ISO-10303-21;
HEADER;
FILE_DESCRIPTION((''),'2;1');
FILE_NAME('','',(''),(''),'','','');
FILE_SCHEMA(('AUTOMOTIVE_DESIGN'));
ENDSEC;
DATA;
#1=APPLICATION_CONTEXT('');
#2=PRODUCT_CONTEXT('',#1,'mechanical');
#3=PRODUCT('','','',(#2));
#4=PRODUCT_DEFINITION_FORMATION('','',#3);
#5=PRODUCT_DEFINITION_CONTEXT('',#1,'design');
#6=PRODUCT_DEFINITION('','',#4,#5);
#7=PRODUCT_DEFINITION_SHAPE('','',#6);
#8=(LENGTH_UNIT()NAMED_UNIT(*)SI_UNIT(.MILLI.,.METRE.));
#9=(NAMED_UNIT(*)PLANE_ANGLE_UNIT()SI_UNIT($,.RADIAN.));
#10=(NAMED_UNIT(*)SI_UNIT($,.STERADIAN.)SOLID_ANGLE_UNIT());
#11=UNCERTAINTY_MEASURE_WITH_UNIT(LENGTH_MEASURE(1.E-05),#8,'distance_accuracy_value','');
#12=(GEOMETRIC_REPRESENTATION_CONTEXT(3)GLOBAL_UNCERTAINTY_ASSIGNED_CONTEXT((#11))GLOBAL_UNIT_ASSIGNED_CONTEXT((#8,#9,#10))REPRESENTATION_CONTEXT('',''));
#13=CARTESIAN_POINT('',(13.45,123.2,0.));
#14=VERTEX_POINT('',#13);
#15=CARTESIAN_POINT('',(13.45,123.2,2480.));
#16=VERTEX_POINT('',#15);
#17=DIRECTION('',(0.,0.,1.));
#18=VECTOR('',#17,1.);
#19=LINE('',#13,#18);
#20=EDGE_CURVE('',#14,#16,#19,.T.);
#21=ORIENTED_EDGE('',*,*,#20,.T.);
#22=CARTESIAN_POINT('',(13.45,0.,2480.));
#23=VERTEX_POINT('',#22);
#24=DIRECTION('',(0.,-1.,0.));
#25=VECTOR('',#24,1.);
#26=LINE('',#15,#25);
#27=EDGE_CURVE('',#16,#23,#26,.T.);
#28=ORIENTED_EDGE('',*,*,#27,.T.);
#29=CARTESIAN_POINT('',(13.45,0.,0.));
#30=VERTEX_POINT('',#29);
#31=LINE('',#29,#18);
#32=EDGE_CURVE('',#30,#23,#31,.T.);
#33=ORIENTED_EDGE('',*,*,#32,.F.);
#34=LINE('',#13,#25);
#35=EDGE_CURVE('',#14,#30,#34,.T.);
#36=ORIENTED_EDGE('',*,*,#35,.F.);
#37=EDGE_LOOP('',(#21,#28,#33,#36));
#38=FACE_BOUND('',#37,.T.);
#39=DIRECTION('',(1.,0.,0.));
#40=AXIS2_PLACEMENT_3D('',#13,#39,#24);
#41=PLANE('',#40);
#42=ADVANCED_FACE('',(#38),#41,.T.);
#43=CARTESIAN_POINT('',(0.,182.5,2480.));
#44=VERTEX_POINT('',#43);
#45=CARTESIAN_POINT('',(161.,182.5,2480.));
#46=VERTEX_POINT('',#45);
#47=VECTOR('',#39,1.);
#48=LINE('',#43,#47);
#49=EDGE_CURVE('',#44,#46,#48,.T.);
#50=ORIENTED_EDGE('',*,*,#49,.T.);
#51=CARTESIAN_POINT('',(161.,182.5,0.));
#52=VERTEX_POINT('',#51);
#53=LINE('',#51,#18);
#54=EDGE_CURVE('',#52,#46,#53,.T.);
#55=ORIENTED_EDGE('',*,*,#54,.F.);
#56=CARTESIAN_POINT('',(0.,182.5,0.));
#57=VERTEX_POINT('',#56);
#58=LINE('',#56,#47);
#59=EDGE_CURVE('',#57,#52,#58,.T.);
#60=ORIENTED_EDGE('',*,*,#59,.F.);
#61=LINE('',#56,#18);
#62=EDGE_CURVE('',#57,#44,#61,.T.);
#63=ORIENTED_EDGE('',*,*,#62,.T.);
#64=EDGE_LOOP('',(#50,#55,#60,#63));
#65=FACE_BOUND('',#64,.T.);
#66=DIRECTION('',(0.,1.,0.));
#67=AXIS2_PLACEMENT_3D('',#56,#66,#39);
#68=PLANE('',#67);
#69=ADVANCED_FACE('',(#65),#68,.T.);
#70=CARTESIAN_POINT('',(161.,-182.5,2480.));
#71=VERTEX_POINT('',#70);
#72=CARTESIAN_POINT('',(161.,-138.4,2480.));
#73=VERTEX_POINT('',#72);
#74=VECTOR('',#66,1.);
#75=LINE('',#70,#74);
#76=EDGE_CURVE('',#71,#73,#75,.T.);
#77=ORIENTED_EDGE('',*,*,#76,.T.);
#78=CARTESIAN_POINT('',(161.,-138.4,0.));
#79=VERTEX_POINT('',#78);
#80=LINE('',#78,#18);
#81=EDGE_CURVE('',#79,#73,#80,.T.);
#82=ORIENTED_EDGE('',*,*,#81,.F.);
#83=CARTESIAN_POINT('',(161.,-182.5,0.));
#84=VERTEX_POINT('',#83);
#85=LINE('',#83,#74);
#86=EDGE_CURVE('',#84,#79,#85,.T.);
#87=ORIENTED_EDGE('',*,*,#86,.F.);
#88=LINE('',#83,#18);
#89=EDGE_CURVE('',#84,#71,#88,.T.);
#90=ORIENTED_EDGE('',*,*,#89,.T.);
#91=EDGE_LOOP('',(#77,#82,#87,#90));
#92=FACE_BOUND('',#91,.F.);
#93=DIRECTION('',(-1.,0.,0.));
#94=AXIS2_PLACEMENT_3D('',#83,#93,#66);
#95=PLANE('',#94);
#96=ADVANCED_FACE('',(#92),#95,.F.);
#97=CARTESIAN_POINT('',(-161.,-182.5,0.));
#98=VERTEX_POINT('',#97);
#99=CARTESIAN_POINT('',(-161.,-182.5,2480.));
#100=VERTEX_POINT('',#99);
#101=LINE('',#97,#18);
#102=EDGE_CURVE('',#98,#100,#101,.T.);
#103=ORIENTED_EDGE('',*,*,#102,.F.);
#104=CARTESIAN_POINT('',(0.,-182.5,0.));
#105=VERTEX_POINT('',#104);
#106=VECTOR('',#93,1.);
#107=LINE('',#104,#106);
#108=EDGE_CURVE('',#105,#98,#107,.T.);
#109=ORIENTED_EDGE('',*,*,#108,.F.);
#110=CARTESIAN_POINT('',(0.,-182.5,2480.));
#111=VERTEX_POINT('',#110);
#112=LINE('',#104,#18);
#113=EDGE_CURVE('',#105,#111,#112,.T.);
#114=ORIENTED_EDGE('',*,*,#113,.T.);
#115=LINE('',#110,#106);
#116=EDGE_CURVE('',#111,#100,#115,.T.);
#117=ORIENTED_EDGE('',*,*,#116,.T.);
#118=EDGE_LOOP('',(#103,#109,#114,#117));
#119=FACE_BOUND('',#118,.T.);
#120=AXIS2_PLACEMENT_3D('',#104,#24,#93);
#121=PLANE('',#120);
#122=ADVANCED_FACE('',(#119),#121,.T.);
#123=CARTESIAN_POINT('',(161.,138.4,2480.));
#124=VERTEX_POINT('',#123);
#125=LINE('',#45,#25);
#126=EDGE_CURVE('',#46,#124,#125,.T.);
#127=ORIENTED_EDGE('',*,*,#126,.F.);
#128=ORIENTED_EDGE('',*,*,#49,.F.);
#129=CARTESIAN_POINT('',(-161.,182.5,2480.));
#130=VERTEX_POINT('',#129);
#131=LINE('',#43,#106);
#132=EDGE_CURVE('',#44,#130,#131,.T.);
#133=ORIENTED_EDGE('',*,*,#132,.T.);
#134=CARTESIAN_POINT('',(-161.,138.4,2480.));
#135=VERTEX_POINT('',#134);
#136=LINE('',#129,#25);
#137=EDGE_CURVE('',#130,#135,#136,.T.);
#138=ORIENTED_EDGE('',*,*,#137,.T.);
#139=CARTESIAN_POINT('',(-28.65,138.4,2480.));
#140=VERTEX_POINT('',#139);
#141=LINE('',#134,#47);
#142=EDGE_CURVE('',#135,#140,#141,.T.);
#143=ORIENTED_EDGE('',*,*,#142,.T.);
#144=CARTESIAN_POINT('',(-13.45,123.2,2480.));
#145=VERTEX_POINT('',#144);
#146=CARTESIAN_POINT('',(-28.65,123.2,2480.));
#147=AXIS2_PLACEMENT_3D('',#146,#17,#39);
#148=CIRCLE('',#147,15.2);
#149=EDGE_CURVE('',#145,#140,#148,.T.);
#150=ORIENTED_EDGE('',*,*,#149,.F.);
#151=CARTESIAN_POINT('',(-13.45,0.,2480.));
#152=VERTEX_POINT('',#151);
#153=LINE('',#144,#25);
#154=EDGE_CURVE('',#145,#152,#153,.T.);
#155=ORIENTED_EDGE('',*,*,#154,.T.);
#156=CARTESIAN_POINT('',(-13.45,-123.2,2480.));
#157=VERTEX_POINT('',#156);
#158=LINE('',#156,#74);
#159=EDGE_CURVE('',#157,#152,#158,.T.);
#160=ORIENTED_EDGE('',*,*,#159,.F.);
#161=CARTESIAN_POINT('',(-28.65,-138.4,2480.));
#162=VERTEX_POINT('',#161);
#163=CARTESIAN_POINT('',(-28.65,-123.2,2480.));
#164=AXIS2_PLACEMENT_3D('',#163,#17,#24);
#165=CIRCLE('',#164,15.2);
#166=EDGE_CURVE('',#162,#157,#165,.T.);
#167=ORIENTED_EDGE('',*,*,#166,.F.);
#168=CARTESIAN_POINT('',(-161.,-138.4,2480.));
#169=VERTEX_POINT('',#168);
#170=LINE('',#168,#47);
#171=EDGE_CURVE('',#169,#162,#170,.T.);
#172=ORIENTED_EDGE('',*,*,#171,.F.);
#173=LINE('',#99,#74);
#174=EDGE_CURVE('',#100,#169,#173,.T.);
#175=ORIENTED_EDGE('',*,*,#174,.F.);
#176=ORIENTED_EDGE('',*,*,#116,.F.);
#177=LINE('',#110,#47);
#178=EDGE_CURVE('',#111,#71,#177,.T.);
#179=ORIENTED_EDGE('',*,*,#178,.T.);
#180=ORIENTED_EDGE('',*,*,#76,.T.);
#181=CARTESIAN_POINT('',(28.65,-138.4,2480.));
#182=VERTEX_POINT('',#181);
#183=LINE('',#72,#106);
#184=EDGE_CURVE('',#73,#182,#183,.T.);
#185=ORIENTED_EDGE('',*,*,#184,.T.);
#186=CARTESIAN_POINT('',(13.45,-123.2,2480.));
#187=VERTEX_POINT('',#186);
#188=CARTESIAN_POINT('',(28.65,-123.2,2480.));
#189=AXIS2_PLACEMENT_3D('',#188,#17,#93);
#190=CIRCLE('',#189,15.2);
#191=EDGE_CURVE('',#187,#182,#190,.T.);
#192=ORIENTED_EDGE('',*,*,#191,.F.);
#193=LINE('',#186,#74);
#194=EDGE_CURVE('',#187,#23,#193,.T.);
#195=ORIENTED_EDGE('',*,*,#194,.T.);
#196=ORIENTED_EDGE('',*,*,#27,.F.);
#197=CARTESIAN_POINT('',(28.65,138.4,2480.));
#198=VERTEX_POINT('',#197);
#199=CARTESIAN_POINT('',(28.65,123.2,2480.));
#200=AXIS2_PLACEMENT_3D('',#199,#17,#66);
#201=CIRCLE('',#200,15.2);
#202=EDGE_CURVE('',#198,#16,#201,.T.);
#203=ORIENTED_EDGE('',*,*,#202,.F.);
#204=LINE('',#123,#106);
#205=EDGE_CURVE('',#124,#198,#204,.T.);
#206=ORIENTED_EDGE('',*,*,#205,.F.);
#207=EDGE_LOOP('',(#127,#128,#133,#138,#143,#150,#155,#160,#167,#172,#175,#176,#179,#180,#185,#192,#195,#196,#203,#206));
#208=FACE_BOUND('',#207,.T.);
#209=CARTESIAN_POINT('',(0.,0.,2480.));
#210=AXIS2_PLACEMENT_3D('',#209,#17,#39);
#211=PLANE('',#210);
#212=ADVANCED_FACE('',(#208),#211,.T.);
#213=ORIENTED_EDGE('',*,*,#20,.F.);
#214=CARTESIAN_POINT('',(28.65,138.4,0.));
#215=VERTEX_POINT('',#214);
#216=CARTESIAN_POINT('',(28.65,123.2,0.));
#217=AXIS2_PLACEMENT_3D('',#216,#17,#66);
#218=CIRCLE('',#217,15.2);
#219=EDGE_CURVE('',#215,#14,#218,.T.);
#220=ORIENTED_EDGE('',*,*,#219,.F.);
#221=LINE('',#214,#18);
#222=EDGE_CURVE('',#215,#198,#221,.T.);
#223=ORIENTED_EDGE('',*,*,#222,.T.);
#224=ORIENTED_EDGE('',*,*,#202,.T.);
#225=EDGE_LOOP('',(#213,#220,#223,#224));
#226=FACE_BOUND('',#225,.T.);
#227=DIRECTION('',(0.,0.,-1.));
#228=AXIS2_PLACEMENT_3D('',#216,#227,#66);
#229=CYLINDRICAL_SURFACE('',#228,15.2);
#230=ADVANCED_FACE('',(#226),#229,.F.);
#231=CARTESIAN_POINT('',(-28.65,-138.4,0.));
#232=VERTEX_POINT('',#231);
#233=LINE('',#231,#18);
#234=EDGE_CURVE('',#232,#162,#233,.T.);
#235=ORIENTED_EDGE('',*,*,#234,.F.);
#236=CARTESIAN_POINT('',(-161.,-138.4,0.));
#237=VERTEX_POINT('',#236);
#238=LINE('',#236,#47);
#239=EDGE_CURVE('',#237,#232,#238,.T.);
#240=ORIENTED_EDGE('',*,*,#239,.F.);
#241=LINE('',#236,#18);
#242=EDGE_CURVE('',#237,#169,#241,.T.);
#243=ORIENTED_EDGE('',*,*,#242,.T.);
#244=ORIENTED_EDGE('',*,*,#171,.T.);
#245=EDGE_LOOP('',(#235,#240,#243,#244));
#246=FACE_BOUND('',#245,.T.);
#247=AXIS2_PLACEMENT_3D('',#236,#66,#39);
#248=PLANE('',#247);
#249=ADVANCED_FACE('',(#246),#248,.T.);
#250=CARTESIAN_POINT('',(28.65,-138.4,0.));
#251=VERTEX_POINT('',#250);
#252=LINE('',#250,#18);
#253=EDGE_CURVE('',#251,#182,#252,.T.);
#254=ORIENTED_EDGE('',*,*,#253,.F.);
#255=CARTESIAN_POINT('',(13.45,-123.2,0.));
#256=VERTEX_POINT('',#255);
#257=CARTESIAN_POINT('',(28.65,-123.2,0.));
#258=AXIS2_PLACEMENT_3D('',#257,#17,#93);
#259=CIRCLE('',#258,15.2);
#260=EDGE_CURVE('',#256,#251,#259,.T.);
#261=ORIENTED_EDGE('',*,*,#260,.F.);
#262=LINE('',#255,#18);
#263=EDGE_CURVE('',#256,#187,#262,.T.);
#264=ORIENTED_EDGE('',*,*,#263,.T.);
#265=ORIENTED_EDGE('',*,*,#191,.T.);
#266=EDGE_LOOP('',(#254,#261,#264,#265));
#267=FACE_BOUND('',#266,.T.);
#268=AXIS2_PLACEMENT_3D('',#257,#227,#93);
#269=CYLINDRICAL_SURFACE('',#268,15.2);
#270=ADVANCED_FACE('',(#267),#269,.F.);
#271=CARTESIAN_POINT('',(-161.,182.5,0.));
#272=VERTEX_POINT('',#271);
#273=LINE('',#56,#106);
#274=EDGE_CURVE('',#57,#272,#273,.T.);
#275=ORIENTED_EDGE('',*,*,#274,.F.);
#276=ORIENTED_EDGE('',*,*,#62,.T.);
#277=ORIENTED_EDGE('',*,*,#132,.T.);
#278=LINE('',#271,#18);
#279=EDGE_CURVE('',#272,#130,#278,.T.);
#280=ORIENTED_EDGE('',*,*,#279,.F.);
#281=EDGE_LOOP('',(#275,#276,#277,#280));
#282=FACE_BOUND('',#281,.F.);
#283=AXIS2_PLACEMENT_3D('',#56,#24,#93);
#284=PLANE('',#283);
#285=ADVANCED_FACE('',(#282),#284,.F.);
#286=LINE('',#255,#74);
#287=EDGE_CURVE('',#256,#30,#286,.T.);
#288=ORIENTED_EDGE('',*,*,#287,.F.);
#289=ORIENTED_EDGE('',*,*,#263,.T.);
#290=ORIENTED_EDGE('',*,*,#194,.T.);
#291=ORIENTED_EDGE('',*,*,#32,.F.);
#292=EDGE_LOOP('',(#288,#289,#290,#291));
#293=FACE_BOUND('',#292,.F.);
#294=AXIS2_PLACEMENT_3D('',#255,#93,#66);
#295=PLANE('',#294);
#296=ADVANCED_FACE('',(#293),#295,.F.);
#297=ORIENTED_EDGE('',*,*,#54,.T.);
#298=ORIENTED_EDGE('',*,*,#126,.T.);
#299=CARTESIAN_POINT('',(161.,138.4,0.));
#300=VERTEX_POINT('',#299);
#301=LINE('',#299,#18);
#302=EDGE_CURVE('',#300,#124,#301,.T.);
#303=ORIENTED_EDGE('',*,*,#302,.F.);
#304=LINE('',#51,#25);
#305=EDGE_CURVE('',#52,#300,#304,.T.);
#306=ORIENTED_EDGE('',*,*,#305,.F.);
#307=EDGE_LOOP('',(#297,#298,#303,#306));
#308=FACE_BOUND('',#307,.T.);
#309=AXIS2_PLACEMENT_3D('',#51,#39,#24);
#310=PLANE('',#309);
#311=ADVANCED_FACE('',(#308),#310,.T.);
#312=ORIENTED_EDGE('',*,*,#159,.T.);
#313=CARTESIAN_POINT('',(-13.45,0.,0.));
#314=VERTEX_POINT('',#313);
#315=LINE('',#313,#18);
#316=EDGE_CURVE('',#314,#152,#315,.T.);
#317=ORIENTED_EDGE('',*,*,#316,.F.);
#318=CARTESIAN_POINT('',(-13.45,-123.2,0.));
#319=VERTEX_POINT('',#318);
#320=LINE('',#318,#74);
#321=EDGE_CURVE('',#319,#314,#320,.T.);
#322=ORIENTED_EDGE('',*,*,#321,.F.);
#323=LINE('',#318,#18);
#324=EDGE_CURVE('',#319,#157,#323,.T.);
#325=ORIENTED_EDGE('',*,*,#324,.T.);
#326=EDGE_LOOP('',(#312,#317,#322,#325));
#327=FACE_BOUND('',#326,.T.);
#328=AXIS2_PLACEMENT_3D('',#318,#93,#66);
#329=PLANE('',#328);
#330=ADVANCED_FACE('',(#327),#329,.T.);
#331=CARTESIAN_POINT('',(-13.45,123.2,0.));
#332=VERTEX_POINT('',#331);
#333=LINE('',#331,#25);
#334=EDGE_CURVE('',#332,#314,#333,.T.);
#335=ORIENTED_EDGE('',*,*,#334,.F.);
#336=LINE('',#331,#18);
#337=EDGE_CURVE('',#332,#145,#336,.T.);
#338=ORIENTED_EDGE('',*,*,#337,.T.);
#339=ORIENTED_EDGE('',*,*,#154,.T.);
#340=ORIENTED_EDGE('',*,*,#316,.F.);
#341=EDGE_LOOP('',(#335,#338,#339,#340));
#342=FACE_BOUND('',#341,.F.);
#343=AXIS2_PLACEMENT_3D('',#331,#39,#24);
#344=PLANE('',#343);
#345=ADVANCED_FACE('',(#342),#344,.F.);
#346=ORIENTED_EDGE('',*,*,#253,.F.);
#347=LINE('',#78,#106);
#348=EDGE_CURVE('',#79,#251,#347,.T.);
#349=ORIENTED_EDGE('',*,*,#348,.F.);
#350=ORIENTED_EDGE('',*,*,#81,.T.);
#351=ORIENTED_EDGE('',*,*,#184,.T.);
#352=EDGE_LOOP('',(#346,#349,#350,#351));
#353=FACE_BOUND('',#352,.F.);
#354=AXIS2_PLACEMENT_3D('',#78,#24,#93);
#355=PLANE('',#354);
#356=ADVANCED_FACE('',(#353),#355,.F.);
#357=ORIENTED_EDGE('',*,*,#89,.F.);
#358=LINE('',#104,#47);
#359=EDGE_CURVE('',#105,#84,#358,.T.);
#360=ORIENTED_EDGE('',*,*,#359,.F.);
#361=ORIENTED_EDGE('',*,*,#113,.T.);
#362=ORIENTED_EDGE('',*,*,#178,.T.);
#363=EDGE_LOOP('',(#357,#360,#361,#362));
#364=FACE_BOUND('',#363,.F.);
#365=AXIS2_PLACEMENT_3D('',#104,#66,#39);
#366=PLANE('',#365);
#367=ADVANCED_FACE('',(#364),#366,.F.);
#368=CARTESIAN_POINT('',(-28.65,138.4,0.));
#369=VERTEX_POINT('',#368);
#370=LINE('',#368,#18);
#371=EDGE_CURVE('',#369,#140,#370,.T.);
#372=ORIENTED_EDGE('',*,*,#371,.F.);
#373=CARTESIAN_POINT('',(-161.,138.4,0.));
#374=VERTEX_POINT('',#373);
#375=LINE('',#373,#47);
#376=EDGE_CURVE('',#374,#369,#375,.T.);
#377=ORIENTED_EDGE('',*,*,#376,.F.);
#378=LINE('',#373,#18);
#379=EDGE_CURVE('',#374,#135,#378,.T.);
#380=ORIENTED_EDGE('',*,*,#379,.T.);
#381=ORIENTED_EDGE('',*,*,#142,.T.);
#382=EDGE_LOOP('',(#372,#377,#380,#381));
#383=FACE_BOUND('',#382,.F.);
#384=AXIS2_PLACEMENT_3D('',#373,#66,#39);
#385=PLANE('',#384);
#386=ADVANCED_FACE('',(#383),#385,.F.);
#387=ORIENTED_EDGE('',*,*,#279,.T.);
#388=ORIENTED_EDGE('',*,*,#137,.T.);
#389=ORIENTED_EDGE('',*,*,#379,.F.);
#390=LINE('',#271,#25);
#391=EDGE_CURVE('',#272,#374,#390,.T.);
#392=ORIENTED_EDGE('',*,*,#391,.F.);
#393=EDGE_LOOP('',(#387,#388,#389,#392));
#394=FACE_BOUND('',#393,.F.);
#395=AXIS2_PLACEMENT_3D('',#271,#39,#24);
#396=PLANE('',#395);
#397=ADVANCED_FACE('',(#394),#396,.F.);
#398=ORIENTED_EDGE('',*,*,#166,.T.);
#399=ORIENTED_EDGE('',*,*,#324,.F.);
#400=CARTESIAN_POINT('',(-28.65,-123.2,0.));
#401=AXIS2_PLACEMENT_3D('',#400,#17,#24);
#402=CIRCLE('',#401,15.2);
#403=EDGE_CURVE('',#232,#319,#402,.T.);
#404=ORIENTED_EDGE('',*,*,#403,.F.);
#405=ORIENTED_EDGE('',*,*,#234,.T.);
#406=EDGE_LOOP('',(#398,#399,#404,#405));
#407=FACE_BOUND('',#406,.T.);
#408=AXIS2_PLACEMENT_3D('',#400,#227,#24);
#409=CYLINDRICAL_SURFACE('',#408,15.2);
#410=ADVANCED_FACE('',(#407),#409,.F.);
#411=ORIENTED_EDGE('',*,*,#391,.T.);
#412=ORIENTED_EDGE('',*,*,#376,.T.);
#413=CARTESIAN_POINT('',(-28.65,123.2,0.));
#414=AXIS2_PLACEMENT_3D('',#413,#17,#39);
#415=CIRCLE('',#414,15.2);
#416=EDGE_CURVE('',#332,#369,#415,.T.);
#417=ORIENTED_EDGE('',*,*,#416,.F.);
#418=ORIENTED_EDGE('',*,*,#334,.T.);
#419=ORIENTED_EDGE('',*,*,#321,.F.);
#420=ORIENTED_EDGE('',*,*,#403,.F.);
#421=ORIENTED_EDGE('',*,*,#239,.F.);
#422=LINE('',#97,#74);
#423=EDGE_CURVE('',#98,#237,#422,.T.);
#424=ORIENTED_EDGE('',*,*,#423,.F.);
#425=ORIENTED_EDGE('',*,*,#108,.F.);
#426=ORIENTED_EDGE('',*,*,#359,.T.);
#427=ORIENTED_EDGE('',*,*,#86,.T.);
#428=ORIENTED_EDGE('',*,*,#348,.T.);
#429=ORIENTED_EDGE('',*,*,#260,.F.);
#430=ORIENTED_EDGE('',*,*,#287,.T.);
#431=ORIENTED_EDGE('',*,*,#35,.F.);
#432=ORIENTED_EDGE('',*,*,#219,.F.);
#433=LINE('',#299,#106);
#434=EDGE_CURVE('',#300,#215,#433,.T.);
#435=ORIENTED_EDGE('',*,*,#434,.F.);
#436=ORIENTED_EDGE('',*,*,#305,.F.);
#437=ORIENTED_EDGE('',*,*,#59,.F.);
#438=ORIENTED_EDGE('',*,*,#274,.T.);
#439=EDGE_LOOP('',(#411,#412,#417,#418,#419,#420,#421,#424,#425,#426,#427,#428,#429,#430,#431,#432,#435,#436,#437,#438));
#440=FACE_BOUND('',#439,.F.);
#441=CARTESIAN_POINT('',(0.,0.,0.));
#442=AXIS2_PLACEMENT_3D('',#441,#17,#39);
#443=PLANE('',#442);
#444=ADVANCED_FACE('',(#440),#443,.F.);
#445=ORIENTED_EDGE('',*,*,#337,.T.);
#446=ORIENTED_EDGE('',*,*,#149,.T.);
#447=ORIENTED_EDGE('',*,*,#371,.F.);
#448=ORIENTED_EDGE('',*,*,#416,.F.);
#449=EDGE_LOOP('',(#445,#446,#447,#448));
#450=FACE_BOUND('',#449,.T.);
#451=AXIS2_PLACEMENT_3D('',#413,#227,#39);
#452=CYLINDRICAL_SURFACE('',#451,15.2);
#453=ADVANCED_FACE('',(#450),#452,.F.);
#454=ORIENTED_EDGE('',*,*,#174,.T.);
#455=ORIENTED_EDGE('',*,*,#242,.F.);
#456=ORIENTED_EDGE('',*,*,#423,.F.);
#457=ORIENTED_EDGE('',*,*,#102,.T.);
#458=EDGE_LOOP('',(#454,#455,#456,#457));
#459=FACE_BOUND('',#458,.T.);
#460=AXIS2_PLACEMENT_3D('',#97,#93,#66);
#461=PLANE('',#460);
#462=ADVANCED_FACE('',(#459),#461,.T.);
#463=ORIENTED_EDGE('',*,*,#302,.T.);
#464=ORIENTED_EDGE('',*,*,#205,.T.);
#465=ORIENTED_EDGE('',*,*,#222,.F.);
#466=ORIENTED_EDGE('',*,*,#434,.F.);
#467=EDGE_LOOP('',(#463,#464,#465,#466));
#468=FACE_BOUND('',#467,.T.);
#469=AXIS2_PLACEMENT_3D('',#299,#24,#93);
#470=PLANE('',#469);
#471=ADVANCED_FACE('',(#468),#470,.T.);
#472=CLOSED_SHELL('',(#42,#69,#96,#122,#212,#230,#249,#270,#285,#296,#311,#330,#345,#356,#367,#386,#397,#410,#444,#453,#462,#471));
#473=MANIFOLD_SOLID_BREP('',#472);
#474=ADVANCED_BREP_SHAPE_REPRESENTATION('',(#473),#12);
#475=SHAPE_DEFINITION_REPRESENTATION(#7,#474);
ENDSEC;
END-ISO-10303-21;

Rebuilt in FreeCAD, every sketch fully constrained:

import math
import FreeCAD as App
import Part
import Sketcher

V = App.Vector
Q = App.Units.Quantity

doc = App.newDocument("Part")
body = doc.addObject("PartDesign::Body", "Body")

# Sketch on XY plane
sketch1 = body.newObject("Sketcher::SketchObject", "Sketch")
sketch1.AttachmentSupport = (doc.getObject("XY_Plane"), [""])
sketch1.MapMode = "FlatFace"
sketch1.addGeometry(Part.LineSegment(V(-161, -138.4, 0), V(-161, -182.5, 0)), False)
sketch1.addGeometry(Part.LineSegment(V(-161, -182.5, 0), V(161, -182.5, 0)), False)
sketch1.addGeometry(Part.LineSegment(V(161, -182.5, 0), V(161, -138.4, 0)), False)
sketch1.addGeometry(Part.LineSegment(V(161, -138.4, 0), V(28.65, -138.4, 0)), False)
sketch1.addGeometry(Part.ArcOfCircle(Part.Circle(V(28.65, -123.2, 0), V(0, 0, 1), 15.2), math.radians(180), math.radians(270)), False)
sketch1.addGeometry(Part.LineSegment(V(13.45, -123.2, 0), V(13.45, 123.2, 0)), False)
sketch1.addGeometry(Part.ArcOfCircle(Part.Circle(V(28.65, 123.2, 0), V(0, 0, 1), 15.2), math.radians(90), math.radians(180)), False)
sketch1.addGeometry(Part.LineSegment(V(28.65, 138.4, 0), V(161, 138.4, 0)), False)
sketch1.addGeometry(Part.LineSegment(V(161, 138.4, 0), V(161, 182.5, 0)), False)
sketch1.addGeometry(Part.LineSegment(V(161, 182.5, 0), V(-161, 182.5, 0)), False)
sketch1.addGeometry(Part.LineSegment(V(-161, 182.5, 0), V(-161, 138.4, 0)), False)
sketch1.addGeometry(Part.LineSegment(V(-161, 138.4, 0), V(-28.65, 138.4, 0)), False)
sketch1.addGeometry(Part.ArcOfCircle(Part.Circle(V(-28.65, 123.2, 0), V(0, 0, 1), 15.2), math.radians(0), math.radians(90)), False)
sketch1.addGeometry(Part.LineSegment(V(-13.45, 123.2, 0), V(-13.45, -123.2, 0)), False)
sketch1.addGeometry(Part.ArcOfCircle(Part.Circle(V(-28.65, -123.2, 0), V(0, 0, 1), 15.2), math.radians(-90), math.radians(0)), False)
sketch1.addGeometry(Part.LineSegment(V(-28.65, -138.4, 0), V(-161, -138.4, 0)), False)
sketch1.addConstraint(Sketcher.Constraint("Coincident", 0, 2, 1, 1))
sketch1.addConstraint(Sketcher.Constraint("Coincident", 1, 2, 2, 1))
sketch1.addConstraint(Sketcher.Constraint("Coincident", 2, 2, 3, 1))
sketch1.addConstraint(Sketcher.Constraint("Tangent", 3, 2, 4, 2))
sketch1.addConstraint(Sketcher.Constraint("Tangent", 4, 1, 5, 1))
sketch1.addConstraint(Sketcher.Constraint("Tangent", 5, 2, 6, 2))
sketch1.addConstraint(Sketcher.Constraint("Tangent", 6, 1, 7, 1))
sketch1.addConstraint(Sketcher.Constraint("Coincident", 7, 2, 8, 1))
sketch1.addConstraint(Sketcher.Constraint("Coincident", 8, 2, 9, 1))
sketch1.addConstraint(Sketcher.Constraint("Coincident", 9, 2, 10, 1))
sketch1.addConstraint(Sketcher.Constraint("Coincident", 10, 2, 11, 1))
sketch1.addConstraint(Sketcher.Constraint("Tangent", 11, 2, 12, 2))
sketch1.addConstraint(Sketcher.Constraint("Tangent", 12, 1, 13, 1))
sketch1.addConstraint(Sketcher.Constraint("Tangent", 13, 2, 14, 2))
sketch1.addConstraint(Sketcher.Constraint("Tangent", 14, 1, 15, 1))
sketch1.addConstraint(Sketcher.Constraint("Coincident", 15, 2, 0, 1))
sketch1.addConstraint(Sketcher.Constraint("Vertical", 0))
sketch1.addConstraint(Sketcher.Constraint("Horizontal", 1))
sketch1.addConstraint(Sketcher.Constraint("Vertical", 2))
sketch1.addConstraint(Sketcher.Constraint("Horizontal", 3))
sketch1.addConstraint(Sketcher.Constraint("Vertical", 5))
sketch1.addConstraint(Sketcher.Constraint("Horizontal", 7))
sketch1.addConstraint(Sketcher.Constraint("Vertical", 8))
sketch1.addConstraint(Sketcher.Constraint("Horizontal", 9))
sketch1.addConstraint(Sketcher.Constraint("Vertical", 10))
sketch1.addConstraint(Sketcher.Constraint("Horizontal", 11))
sketch1.addConstraint(Sketcher.Constraint("Vertical", 13))
sketch1.addConstraint(Sketcher.Constraint("Horizontal", 15))
sketch1.addConstraint(Sketcher.Constraint("Equal", 4, 6))
sketch1.addConstraint(Sketcher.Constraint("Equal", 6, 12))
sketch1.addConstraint(Sketcher.Constraint("Equal", 12, 14))
sketch1.addConstraint(Sketcher.Constraint("Symmetric", 4, 3, 12, 3, -1, 1))
sketch1.addConstraint(Sketcher.Constraint("Symmetric", 0, 2, 8, 2, -1, 1))
sketch1.addConstraint(Sketcher.Constraint("Symmetric", 7, 2, 10, 2, -2))
sketch1.addConstraint(Sketcher.Constraint("Symmetric", 2, 2, 15, 2, -2))
sketch1.addConstraint(Sketcher.Constraint("Radius", 4, Q("15.2 mm")))
sketch1.addConstraint(Sketcher.Constraint("DistanceY", 0, 2, 0, 1, Q("44.1 mm")))
sketch1.addConstraint(Sketcher.Constraint("DistanceX", 0, 2, -1, 1, Q("161 mm")))
sketch1.addConstraint(Sketcher.Constraint("DistanceY", 0, 2, -1, 1, Q("182.5 mm")))
sketch1.addConstraint(Sketcher.Constraint("DistanceX", -1, 1, 4, 1, Q("13.45 mm")))
pad1 = body.newObject("PartDesign::Pad", "Pad")
pad1.Profile = sketch1
pad1.Length = 2480

doc.recompute()
